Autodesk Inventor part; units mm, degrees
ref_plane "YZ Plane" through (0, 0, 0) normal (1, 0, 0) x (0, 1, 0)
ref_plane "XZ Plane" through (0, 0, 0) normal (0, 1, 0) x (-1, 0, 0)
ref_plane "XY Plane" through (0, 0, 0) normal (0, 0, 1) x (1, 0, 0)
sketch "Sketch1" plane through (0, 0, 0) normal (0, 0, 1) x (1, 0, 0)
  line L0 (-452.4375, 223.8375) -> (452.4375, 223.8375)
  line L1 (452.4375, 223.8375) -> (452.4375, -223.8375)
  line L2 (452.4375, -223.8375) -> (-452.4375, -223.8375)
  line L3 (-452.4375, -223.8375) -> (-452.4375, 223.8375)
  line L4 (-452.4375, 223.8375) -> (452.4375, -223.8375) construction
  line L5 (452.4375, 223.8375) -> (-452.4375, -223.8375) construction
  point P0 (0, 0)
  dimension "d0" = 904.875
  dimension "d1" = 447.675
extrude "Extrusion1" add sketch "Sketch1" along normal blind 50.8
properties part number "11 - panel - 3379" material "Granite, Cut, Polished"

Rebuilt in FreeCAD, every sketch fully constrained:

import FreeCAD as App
import Part
import Sketcher

V = App.Vector
Q = App.Units.Quantity


def add_polygon(sketch, points):
    """Adds a closed chain of lines whose ends are joined by coincident constraints."""
    first, n = sketch.GeometryCount, len(points)
    for a, b in zip(points, points[1:] + points[:1]):
        sketch.addGeometry(Part.LineSegment(App.Vector(*a, 0), App.Vector(*b, 0)), False)
    for i in range(n):
        sketch.addConstraint(Sketcher.Constraint("Coincident", first + i, 2, first + (i + 1) % n, 1))

doc = App.newDocument("Part")
body = doc.addObject("PartDesign::Body", "Body")

# Sketch on XY plane
sketch1 = doc.addObject("Sketcher::SketchObject", "Sketch")
body.addObject(sketch1)
sketch1.AttachmentSupport = (doc.XY_Plane, [""])
sketch1.MapMode = "FlatFace"
add_polygon(sketch1, [(452, 224), (-452, 224), (-452, -224), (452, -224)])  # lines 0-3
sketch1.addConstraint([
    Sketcher.Constraint("Horizontal", 0),
    Sketcher.Constraint("Vertical", 1),
    Sketcher.Constraint("Horizontal", 2),
    Sketcher.Constraint("Vertical", 3),
    Sketcher.Constraint("Symmetric", 0, 2, 2, 2, -1, 1),
    Sketcher.Constraint("DistanceX", 0, 2, 0, 1, Q("35.625 in")),
    Sketcher.Constraint("DistanceY", 1, 2, 1, 1, Q("17.625 in")),
])
pad1 = doc.addObject("PartDesign::Pad", "Pad")
body.addObject(pad1)
pad1.Profile = sketch1
pad1.Length = Q("2 in")

doc.recompute()
